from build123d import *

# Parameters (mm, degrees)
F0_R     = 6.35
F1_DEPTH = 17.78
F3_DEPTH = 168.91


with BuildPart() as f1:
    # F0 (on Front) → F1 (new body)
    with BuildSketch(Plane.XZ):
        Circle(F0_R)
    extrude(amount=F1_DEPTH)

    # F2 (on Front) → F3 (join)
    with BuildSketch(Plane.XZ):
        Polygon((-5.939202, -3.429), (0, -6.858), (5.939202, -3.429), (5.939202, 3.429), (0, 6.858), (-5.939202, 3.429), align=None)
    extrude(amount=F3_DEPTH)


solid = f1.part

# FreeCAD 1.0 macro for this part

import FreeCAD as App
import Part
import Sketcher
Q = App.Units.Quantity

doc = App.newDocument("Part")
params = doc.addObject("Spreadsheet::Sheet", "Params")
for row, (alias, value) in enumerate([
    ("sketch1_diameter", "0.5 in"),
    ("pad1_length", "0.7 in"),
    ("sketch2_height", "0.27 in"),
    ("sketch2_length", "0.27 in"),
    ("pad2_length", "6.65 in"),
], start=1):
    params.set(f"A{row}", alias)
    params.set(f"B{row}", "=" + value)
    params.setAlias(f"B{row}", alias)

body = doc.addObject("PartDesign::Body", "Body")

sketch1 = body.newObject("Sketcher::SketchObject", "Sketch")
sketch1.AttachmentSupport = (doc.getObject("XZ_Plane"), [""])
sketch1.MapMode = "FlatFace"
sketch1.addGeometry(Part.Circle(App.Vector(0, 0, 0), App.Vector(0, 0, 1), 6), False)
sketch1.addConstraint([
    Sketcher.Constraint("Coincident", 0, 3, -1, 1),
    Sketcher.Constraint("Diameter", 0, Q("0.5 in")),
])
sketch1.setExpression("Constraints[1]", "Params.sketch1_diameter")
pad1 = body.newObject("PartDesign::Pad", "Pad")
pad1.Profile = sketch1
pad1.setExpression("Length", "Params.pad1_length")

sketch2 = body.newObject("Sketcher::SketchObject", "Sketch001")
sketch2.AttachmentSupport = (doc.getObject("XZ_Plane"), [""])
sketch2.MapMode = "FlatFace"
sketch2.addGeometry([
    Part.LineSegment(App.Vector(-6, -3, 0), App.Vector(0, -7, 0)),
    Part.LineSegment(App.Vector(0, -7, 0), App.Vector(6, -3, 0)),
    Part.LineSegment(App.Vector(6, -3, 0), App.Vector(6, 3, 0)),
    Part.LineSegment(App.Vector(6, 3, 0), App.Vector(0, 7, 0)),
    Part.LineSegment(App.Vector(0, 7, 0), App.Vector(-6, 3, 0)),
    Part.LineSegment(App.Vector(-6, 3, 0), App.Vector(-6, -3, 0)),
], False)
sketch2.addConstraint([
    Sketcher.Constraint("Coincident", 0, 2, 1, 1),
    Sketcher.Constraint("Coincident", 1, 2, 2, 1),
    Sketcher.Constraint("Coincident", 2, 2, 3, 1),
    Sketcher.Constraint("Coincident", 3, 2, 4, 1),
    Sketcher.Constraint("Coincident", 4, 2, 5, 1),
    Sketcher.Constraint("Coincident", 5, 2, 0, 1),
    Sketcher.Constraint("Vertical", 2),
    Sketcher.Constraint("Vertical", 5),
    Sketcher.Constraint("Symmetric", 0, 2, 3, 2, -1, 1),
    Sketcher.Constraint("Symmetric", 1, 2, 4, 2, -1, 1),
    Sketcher.Constraint("PointOnObject", 0, 2, -2),
    Sketcher.Constraint("Parallel", 0, 3),
    Sketcher.Constraint("Horizontal", 2, 2, 4, 2),
    Sketcher.Constraint("Angle", 0, Q("-30.000001 deg")),
    Sketcher.Constraint("DistanceY", 2, 1, 2, 2, Q("0.27 in")),
    Sketcher.Constraint("Distance", 0, Q("0.27 in")),
])
sketch2.setExpression("Constraints[14]", "Params.sketch2_height")
sketch2.setExpression("Constraints[15]", "Params.sketch2_length")
pad2 = body.newObject("PartDesign::Pad", "Pad001")
pad2.Profile = sketch2
pad2.setExpression("Length", "Params.pad2_length")

doc.recompute()
